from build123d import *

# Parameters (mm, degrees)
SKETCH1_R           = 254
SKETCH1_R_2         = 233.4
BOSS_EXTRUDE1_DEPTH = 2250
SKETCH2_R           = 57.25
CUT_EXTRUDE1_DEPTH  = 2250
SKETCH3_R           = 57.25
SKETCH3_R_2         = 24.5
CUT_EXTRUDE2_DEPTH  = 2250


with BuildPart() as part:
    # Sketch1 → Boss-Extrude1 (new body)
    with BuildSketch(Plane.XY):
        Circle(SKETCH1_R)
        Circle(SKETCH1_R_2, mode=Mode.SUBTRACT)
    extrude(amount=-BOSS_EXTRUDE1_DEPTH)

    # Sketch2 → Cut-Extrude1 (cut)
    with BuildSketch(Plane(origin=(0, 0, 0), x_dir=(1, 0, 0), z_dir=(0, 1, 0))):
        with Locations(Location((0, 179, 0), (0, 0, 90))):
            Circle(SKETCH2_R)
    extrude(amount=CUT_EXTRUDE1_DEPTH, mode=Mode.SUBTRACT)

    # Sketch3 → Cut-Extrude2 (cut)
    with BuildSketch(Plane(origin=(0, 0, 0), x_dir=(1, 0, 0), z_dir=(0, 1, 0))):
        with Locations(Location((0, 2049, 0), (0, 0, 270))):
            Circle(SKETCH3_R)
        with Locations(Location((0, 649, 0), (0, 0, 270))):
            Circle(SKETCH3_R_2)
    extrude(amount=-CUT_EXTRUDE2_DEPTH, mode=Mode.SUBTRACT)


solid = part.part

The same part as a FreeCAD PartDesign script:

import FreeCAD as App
import Part
import Sketcher
from FreeCAD import Vector

doc = App.newDocument("Part")
body = doc.addObject("PartDesign::Body", "Body")

# Sketch on XY plane
sketch1 = body.newObject("Sketcher::SketchObject", "Sketch")
sketch1.AttachmentSupport = (doc.getObject("XY_Plane"), [""])
sketch1.MapMode = "FlatFace"
sketch1.addGeometry([
    Part.Circle(Vector(0, 0, 0), Vector(0, 0, 1), 254),
    Part.Circle(Vector(0, 0, 0), Vector(0, 0, 1), 233),
], False)
sketch1.addConstraint([
    Sketcher.Constraint("Coincident", 0, 3, -1, 1),
    Sketcher.Constraint("Coincident", 1, 3, -1, 1),
    Sketcher.Constraint("Diameter", 0, 508.0),
    Sketcher.Constraint("Diameter", 1, 466.8),
])
pad1 = body.newObject("PartDesign::Pad", "Pad")
pad1.Profile = sketch1
pad1.Length = 2250
pad1.Reversed = True

# Sketch on XZ plane
sketch2 = body.newObject("Sketcher::SketchObject", "Sketch001")
sketch2.AttachmentSupport = (doc.getObject("XZ_Plane"), [""])
sketch2.MapMode = "FlatFace"
sketch2.addGeometry(Part.Circle(Vector(0, -179, 0), Vector(0, 0, 1), 57), False)
sketch2.addConstraint([
    Sketcher.Constraint("PointOnObject", 0, 3, -2),
    Sketcher.Constraint("Diameter", 0, 114.5),
    Sketcher.Constraint("DistanceY", 0, 3, -1, 1, 179.0),
])
pocket1 = body.newObject("PartDesign::Pocket", "Pocket")
pocket1.Profile = sketch2
pocket1.Length = 2250

# Sketch on XZ plane
sketch3 = body.newObject("Sketcher::SketchObject", "Sketch002")
sketch3.AttachmentSupport = (doc.getObject("XZ_Plane"), [""])
sketch3.MapMode = "FlatFace"
sketch3.addGeometry([
    Part.Circle(Vector(0, -2049, 0), Vector(0, 0, 1), 57),
    Part.Circle(Vector(0, -649, 0), Vector(0, 0, 1), 24),
], False)
sketch3.addConstraint([
    Sketcher.Constraint("PointOnObject", 0, 3, -2),
    Sketcher.Constraint("PointOnObject", 1, 3, -2),
    Sketcher.Constraint("Diameter", 1, 49.0),
    Sketcher.Constraint("Diameter", 0, 114.5),
    Sketcher.Constraint("DistanceY", 0, 3, -1, 1, 2049.0),
    Sketcher.Constraint("DistanceY", 1, 3, -1, 1, 649.0),
])
pocket2 = body.newObject("PartDesign::Pocket", "Pocket001")
pocket2.Profile = sketch3
pocket2.Length = 2250
pocket2.Reversed = True

doc.recompute()
